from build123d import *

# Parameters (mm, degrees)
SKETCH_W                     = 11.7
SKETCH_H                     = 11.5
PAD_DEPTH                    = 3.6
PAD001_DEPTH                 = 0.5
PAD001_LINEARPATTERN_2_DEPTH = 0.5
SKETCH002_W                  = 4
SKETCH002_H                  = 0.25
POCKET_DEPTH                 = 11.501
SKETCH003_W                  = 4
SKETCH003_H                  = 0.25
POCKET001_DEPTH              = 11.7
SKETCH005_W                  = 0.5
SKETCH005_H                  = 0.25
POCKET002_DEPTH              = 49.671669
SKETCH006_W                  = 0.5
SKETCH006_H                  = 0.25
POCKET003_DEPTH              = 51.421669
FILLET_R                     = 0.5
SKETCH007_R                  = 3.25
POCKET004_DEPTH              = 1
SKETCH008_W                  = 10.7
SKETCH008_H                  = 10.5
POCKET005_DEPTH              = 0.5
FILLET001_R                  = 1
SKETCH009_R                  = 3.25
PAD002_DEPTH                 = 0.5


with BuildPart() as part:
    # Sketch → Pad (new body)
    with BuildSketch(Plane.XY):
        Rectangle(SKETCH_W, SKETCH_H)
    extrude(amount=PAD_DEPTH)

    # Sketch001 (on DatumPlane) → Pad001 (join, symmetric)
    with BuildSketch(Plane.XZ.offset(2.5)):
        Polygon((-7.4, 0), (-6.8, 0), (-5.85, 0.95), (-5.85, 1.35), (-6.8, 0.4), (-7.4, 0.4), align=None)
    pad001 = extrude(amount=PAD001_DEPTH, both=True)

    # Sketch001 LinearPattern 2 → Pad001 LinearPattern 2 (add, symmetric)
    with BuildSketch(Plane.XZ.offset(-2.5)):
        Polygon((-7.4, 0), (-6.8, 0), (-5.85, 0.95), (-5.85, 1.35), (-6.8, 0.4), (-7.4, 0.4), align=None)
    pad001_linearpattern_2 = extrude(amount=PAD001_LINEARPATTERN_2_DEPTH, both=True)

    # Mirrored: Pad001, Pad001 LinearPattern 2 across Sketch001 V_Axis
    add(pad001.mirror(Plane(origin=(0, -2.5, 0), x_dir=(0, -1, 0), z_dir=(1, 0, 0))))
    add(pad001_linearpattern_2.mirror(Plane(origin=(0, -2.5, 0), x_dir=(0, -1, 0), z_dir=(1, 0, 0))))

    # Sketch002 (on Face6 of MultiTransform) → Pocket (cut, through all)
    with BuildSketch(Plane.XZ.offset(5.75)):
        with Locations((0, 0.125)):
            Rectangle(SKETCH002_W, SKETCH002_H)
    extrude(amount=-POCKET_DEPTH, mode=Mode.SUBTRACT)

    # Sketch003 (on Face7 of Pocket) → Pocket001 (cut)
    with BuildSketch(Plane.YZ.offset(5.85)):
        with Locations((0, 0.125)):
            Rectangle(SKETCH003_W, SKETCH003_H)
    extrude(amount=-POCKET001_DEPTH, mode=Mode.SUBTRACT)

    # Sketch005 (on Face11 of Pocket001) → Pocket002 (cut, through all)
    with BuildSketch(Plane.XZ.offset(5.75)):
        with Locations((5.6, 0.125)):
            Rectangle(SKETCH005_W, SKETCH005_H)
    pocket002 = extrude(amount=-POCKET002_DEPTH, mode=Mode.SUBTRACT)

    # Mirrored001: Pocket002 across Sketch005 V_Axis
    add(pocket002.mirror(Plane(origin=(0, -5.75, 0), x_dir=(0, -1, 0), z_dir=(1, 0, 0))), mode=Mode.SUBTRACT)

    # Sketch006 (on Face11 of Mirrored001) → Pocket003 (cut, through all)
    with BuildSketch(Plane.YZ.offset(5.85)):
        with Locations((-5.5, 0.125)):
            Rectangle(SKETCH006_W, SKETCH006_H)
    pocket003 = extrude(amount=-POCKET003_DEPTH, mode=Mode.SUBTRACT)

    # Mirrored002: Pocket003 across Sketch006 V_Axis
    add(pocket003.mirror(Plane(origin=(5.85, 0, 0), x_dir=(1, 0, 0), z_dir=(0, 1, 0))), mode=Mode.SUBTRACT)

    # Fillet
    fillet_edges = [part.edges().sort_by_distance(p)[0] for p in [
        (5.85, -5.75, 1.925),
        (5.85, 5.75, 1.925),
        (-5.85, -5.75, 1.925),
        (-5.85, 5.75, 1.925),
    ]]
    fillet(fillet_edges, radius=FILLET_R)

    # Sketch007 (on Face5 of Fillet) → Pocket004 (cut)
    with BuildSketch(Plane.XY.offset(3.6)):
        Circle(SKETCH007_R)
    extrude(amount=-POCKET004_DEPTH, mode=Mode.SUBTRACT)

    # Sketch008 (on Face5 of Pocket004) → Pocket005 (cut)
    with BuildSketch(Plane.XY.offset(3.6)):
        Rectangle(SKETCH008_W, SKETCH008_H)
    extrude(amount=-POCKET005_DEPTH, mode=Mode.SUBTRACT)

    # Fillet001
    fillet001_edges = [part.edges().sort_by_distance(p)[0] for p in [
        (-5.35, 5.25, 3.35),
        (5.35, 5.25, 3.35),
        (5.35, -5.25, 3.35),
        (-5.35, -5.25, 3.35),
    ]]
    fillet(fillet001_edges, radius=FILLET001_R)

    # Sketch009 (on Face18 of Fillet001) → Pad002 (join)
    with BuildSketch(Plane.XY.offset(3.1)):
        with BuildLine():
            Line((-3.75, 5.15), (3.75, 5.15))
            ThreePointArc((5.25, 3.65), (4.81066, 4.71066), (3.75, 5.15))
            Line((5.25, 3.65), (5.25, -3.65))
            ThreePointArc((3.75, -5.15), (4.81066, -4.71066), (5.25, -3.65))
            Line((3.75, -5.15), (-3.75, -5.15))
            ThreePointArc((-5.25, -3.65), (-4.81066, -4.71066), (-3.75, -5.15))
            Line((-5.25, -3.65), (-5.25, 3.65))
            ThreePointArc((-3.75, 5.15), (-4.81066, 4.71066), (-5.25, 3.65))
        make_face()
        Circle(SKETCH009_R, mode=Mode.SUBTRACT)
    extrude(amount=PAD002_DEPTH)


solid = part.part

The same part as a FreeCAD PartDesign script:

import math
import FreeCAD as App
import Part
import Sketcher
from FreeCAD import Vector
Q = App.Units.Quantity


def edges_at(feature, points):
    """Names of the edges that pass closest to the given points."""
    edges = feature.Shape.Edges
    near = lambda p: min(range(len(edges)), key=lambda i: edges[i].distToShape(Part.Vertex(*p))[0])
    return sorted({f"Edge{near(p) + 1}" for p in points})


def add_polygon(sketch, points):
    """Adds a closed chain of lines whose ends are joined by coincident constraints."""
    first, n = sketch.GeometryCount, len(points)
    for a, b in zip(points, points[1:] + points[:1]):
        sketch.addGeometry(Part.LineSegment(App.Vector(*a, 0), App.Vector(*b, 0)), False)
    for i in range(n):
        sketch.addConstraint(Sketcher.Constraint("Coincident", first + i, 2, first + (i + 1) % n, 1))

doc = App.newDocument("Part")
body = doc.addObject("PartDesign::Body", "Body")

# Sketch on XY plane
sketch1 = body.newObject("Sketcher::SketchObject", "Sketch")
sketch1.AttachmentSupport = (doc.getObject("XY_Plane"), [""])
sketch1.MapMode = "FlatFace"
add_polygon(sketch1, [(-6, 6), (-6, -6), (6, -6), (6, 6)])  # lines 0-3
sketch1.addConstraint(Sketcher.Constraint("Vertical", 0))
sketch1.addConstraint(Sketcher.Constraint("Horizontal", 1))
sketch1.addConstraint(Sketcher.Constraint("Vertical", 2))
sketch1.addConstraint(Sketcher.Constraint("Horizontal", 3))
sketch1.addConstraint(Sketcher.Constraint("Symmetric", 0, 2, 2, 2, -1, 1))
sketch1.addConstraint(Sketcher.Constraint("DistanceX", 1, 1, 1, 2, Q("11.7 mm")))
sketch1.addConstraint(Sketcher.Constraint("DistanceY", 0, 2, 0, 1, Q("11.5 mm")))
pad1 = body.newObject("PartDesign::Pad", "Pad")
pad1.Profile = sketch1
pad1.Length = 3.6

# Sketch on XZ plane
sketch2 = body.newObject("Sketcher::SketchObject", "Sketch001")
sketch2.AttachmentSupport = (doc.getObject("XZ_Plane"), [""])
sketch2.MapMode = "FlatFace"
sketch2.AttachmentOffset = App.Placement(Vector(0, 0, 2.5), App.Rotation())
add_polygon(sketch2, [(-7.4, 0), (-6.8, 0), (-5.85, 0.95), (-5.85, 1.35), (-6.8, 0.4), (-7.4, 0.4)])  # lines 0-5
sketch2.addConstraint(Sketcher.Constraint("Horizontal", 0))
sketch2.addConstraint(Sketcher.Constraint("Vertical", 2))
sketch2.addConstraint(Sketcher.Constraint("Horizontal", 4))
sketch2.addConstraint(Sketcher.Constraint("Vertical", 5))
sketch2.addConstraint(Sketcher.Constraint("PointOnObject", 0, 2, -1))
sketch2.addConstraint(Sketcher.Constraint("Parallel", 1, 3))
sketch2.addConstraint(Sketcher.Constraint("Vertical", 0, 2, 3, 2))
sketch2.addConstraint(Sketcher.Constraint("Angle", 1, Q("45 deg")))
sketch2.addConstraint(Sketcher.Constraint("DistanceX", 0, 1, 0, 2, Q("0.6 mm")))
sketch2.addConstraint(Sketcher.Constraint("DistanceY", 2, 1, 2, 2, Q("0.4 mm")))
sketch2.addConstraint(Sketcher.Constraint("DistanceX", 0, 2, -1, 1, Q("6.8 mm")))
sketch2.addConstraint(Sketcher.Constraint("DistanceX", 1, 2, -1, 1, Q("5.85 mm")))
pad2 = body.newObject("PartDesign::Pad", "Pad001")
pad2.Profile = sketch2
pad2.Length = 1
pad2.Midplane = True

# Sketch on XZ plane
sketch3 = body.newObject("Sketcher::SketchObject", "Sketch002")
sketch3.AttachmentSupport = (doc.getObject("XZ_Plane"), [""])
sketch3.MapMode = "FlatFace"
sketch3.AttachmentOffset = App.Placement(Vector(0, 0, -2.5), App.Rotation())
add_polygon(sketch3, [(-7.4, 0), (-6.8, 0), (-5.85, 0.95), (-5.85, 1.35), (-6.8, 0.4), (-7.4, 0.4)])  # lines 0-5
sketch3.addConstraint(Sketcher.Constraint("Horizontal", 0))
sketch3.addConstraint(Sketcher.Constraint("Vertical", 2))
sketch3.addConstraint(Sketcher.Constraint("Horizontal", 4))
sketch3.addConstraint(Sketcher.Constraint("Vertical", 5))
sketch3.addConstraint(Sketcher.Constraint("PointOnObject", 0, 2, -1))
sketch3.addConstraint(Sketcher.Constraint("Parallel", 1, 3))
sketch3.addConstraint(Sketcher.Constraint("Vertical", 0, 2, 3, 2))
sketch3.addConstraint(Sketcher.Constraint("Angle", 1, Q("45 deg")))
sketch3.addConstraint(Sketcher.Constraint("DistanceX", 0, 1, 0, 2, Q("0.6 mm")))
sketch3.addConstraint(Sketcher.Constraint("DistanceY", 2, 1, 2, 2, Q("0.4 mm")))
sketch3.addConstraint(Sketcher.Constraint("DistanceX", 0, 2, -1, 1, Q("6.8 mm")))
sketch3.addConstraint(Sketcher.Constraint("DistanceX", 1, 2, -1, 1, Q("5.85 mm")))
pad3 = body.newObject("PartDesign::Pad", "Pad002")
pad3.Profile = sketch3
pad3.Length = 1
pad3.Midplane = True
doc.recompute()

mirrored = body.newObject("PartDesign::Mirrored", "Mirrored")
mirrored.Originals = [pad2, pad3]
mirrored.MirrorPlane = (doc.getObject("YZ_Plane"), [""])
body.Tip = mirrored

# Sketch on XZ plane
sketch4 = body.newObject("Sketcher::SketchObject", "Sketch003")
sketch4.AttachmentSupport = (doc.getObject("XZ_Plane"), [""])
sketch4.MapMode = "FlatFace"
sketch4.AttachmentOffset = App.Placement(Vector(0, 0, 5.75), App.Rotation())
add_polygon(sketch4, [(-2, 0.25), (-2, 0), (2, 0), (2, 0.25)])  # lines 0-3
sketch4.addConstraint(Sketcher.Constraint("Vertical", 0))
sketch4.addConstraint(Sketcher.Constraint("Horizontal", 1))
sketch4.addConstraint(Sketcher.Constraint("Vertical", 2))
sketch4.addConstraint(Sketcher.Constraint("Horizontal", 3))
sketch4.addConstraint(Sketcher.Constraint("Symmetric", 0, 2, 1, 2, -1, 1))
sketch4.addConstraint(Sketcher.Constraint("DistanceX", 1, 1, 1, 2, Q("4 mm")))
sketch4.addConstraint(Sketcher.Constraint("DistanceY", 0, 2, 0, 1, Q("0.25 mm")))
pocket1 = body.newObject("PartDesign::Pocket", "Pocket")
pocket1.Profile = sketch4
pocket1.Type = "ThroughAll"

# Sketch on YZ plane
sketch5 = body.newObject("Sketcher::SketchObject", "Sketch004")
sketch5.AttachmentSupport = (doc.getObject("YZ_Plane"), [""])
sketch5.MapMode = "FlatFace"
sketch5.AttachmentOffset = App.Placement(Vector(0, 0, 5.85), App.Rotation())
add_polygon(sketch5, [(-2, 0.25), (-2, 0), (2, 0), (2, 0.25)])  # lines 0-3
sketch5.addConstraint(Sketcher.Constraint("Vertical", 0))
sketch5.addConstraint(Sketcher.Constraint("Horizontal", 1))
sketch5.addConstraint(Sketcher.Constraint("Vertical", 2))
sketch5.addConstraint(Sketcher.Constraint("Horizontal", 3))
sketch5.addConstraint(Sketcher.Constraint("Symmetric", 0, 2, 1, 2, -1, 1))
sketch5.addConstraint(Sketcher.Constraint("DistanceX", 1, 1, 1, 2, Q("4 mm")))
sketch5.addConstraint(Sketcher.Constraint("DistanceY", 0, 2, 0, 1, Q("0.25 mm")))
pocket2 = body.newObject("PartDesign::Pocket", "Pocket001")
pocket2.Profile = sketch5
pocket2.Length = 11.7

# Sketch on XZ plane
sketch6 = body.newObject("Sketcher::SketchObject", "Sketch005")
sketch6.AttachmentSupport = (doc.getObject("XZ_Plane"), [""])
sketch6.MapMode = "FlatFace"
sketch6.AttachmentOffset = App.Placement(Vector(0, 0, 5.75), App.Rotation())
add_polygon(sketch6, [(5.35, 0.25), (5.35, 0), (5.85, 0), (5.85, 0.25)])  # lines 0-3
sketch6.addConstraint(Sketcher.Constraint("Vertical", 0))
sketch6.addConstraint(Sketcher.Constraint("Horizontal", 1))
sketch6.addConstraint(Sketcher.Constraint("Vertical", 2))
sketch6.addConstraint(Sketcher.Constraint("Horizontal", 3))
sketch6.addConstraint(Sketcher.Constraint("PointOnObject", 0, 2, -1))
sketch6.addConstraint(Sketcher.Constraint("DistanceX", 1, 1, 1, 2, Q("0.5 mm")))
sketch6.addConstraint(Sketcher.Constraint("DistanceY", 0, 2, 0, 1, Q("0.25 mm")))
sketch6.addConstraint(Sketcher.Constraint("DistanceX", -1, 1, 0, 2, Q("5.35 mm")))
pocket3 = body.newObject("PartDesign::Pocket", "Pocket002")
pocket3.Profile = sketch6
pocket3.Type = "ThroughAll"
doc.recompute()

mirrored2 = body.newObject("PartDesign::Mirrored", "Mirrored001")
mirrored2.Originals = [pocket3]
mirrored2.MirrorPlane = (doc.getObject("YZ_Plane"), [""])
body.Tip = mirrored2

# Sketch on YZ plane
sketch7 = body.newObject("Sketcher::SketchObject", "Sketch006")
sketch7.AttachmentSupport = (doc.getObject("YZ_Plane"), [""])
sketch7.MapMode = "FlatFace"
sketch7.AttachmentOffset = App.Placement(Vector(0, 0, 5.85), App.Rotation())
add_polygon(sketch7, [(-5.75, 0.25), (-5.75, 0), (-5.25, 0), (-5.25, 0.25)])  # lines 0-3
sketch7.addConstraint(Sketcher.Constraint("Vertical", 0))
sketch7.addConstraint(Sketcher.Constraint("Horizontal", 1))
sketch7.addConstraint(Sketcher.Constraint("Vertical", 2))
sketch7.addConstraint(Sketcher.Constraint("Horizontal", 3))
sketch7.addConstraint(Sketcher.Constraint("PointOnObject", 0, 2, -1))
sketch7.addConstraint(Sketcher.Constraint("DistanceX", 1, 1, 1, 2, Q("0.5 mm")))
sketch7.addConstraint(Sketcher.Constraint("DistanceY", 0, 2, 0, 1, Q("0.25 mm")))
sketch7.addConstraint(Sketcher.Constraint("DistanceX", 0, 2, -1, 1, Q("5.75 mm")))
pocket4 = body.newObject("PartDesign::Pocket", "Pocket003")
pocket4.Profile = sketch7
pocket4.Type = "ThroughAll"
doc.recompute()

mirrored3 = body.newObject("PartDesign::Mirrored", "Mirrored002")
mirrored3.Originals = [pocket4]
mirrored3.MirrorPlane = (doc.getObject("XZ_Plane"), [""])
body.Tip = mirrored3
doc.recompute()

fillet = body.newObject("PartDesign::Fillet", "Fillet")
fillet.Base = (mirrored3, edges_at(mirrored3, [
    (5.85, -5.75, 1.925),
    (5.85, 5.75, 1.925),
    (-5.85, -5.75, 1.925),
    (-5.85, 5.75, 1.925),
]))
fillet.Radius = 0.5

# Sketch on XY plane
sketch8 = body.newObject("Sketcher::SketchObject", "Sketch007")
sketch8.AttachmentSupport = (doc.getObject("XY_Plane"), [""])
sketch8.MapMode = "FlatFace"
sketch8.AttachmentOffset = App.Placement(Vector(0, 0, 3.6), App.Rotation())
sketch8.addGeometry(Part.Circle(Vector(0, 0, 0), Vector(0, 0, 1), 3.2), False)
sketch8.addConstraint(Sketcher.Constraint("Coincident", 0, 3, -1, 1))
sketch8.addConstraint(Sketcher.Constraint("Diameter", 0, Q("6.5 mm")))
pocket5 = body.newObject("PartDesign::Pocket", "Pocket004")
pocket5.Profile = sketch8
pocket5.Length = 1

# Sketch on XY plane
sketch9 = body.newObject("Sketcher::SketchObject", "Sketch008")
sketch9.AttachmentSupport = (doc.getObject("XY_Plane"), [""])
sketch9.MapMode = "FlatFace"
sketch9.AttachmentOffset = App.Placement(Vector(0, 0, 3.6), App.Rotation())
add_polygon(sketch9, [(-5, 5), (-5, -5), (5, -5), (5, 5)])  # lines 0-3
sketch9.addConstraint(Sketcher.Constraint("Vertical", 0))
sketch9.addConstraint(Sketcher.Constraint("Horizontal", 1))
sketch9.addConstraint(Sketcher.Constraint("Vertical", 2))
sketch9.addConstraint(Sketcher.Constraint("Horizontal", 3))
sketch9.addConstraint(Sketcher.Constraint("Symmetric", 0, 2, 2, 2, -1, 1))
sketch9.addConstraint(Sketcher.Constraint("DistanceX", 1, 1, 1, 2, Q("10.7 mm")))
sketch9.addConstraint(Sketcher.Constraint("DistanceY", 0, 2, 0, 1, Q("10.5 mm")))
pocket6 = body.newObject("PartDesign::Pocket", "Pocket005")
pocket6.Profile = sketch9
pocket6.Length = 0.5
doc.recompute()

fillet2 = body.newObject("PartDesign::Fillet", "Fillet001")
fillet2.Base = (pocket6, edges_at(pocket6, [
    (-5.35, 5.25, 3.35),
    (5.35, 5.25, 3.35),
    (5.35, -5.25, 3.35),
    (-5.35, -5.25, 3.35),
]))
fillet2.Radius = 1

# Sketch on XY plane
sketch10 = body.newObject("Sketcher::SketchObject", "Sketch009")
sketch10.AttachmentSupport = (doc.getObject("XY_Plane"), [""])
sketch10.MapMode = "FlatFace"
sketch10.AttachmentOffset = App.Placement(Vector(0, 0, 3.1), App.Rotation())
sketch10.addGeometry(Part.LineSegment(Vector(3.8, 5.2, 0), Vector(-3.8, 5.2, 0)), False)
sketch10.addGeometry(Part.ArcOfCircle(Part.Circle(Vector(-3.7, 3.6, 0), Vector(0, 0, 1), 1.5), math.radians(90), math.radians(180)), False)
sketch10.addGeometry(Part.LineSegment(Vector(-5.2, 3.6, 0), Vector(-5.2, -3.6, 0)), False)
sketch10.addGeometry(Part.ArcOfCircle(Part.Circle(Vector(-3.7, -3.6, 0), Vector(0, 0, 1), 1.5), math.radians(-180), math.radians(-90)), False)
sketch10.addGeometry(Part.LineSegment(Vector(-3.8, -5.2, 0), Vector(3.8, -5.2, 0)), False)
sketch10.addGeometry(Part.ArcOfCircle(Part.Circle(Vector(3.7, -3.6, 0), Vector(0, 0, 1), 1.5), math.radians(-90), math.radians(0)), False)
sketch10.addGeometry(Part.LineSegment(Vector(5.2, -3.6, 0), Vector(5.2, 3.6, 0)), False)
sketch10.addGeometry(Part.ArcOfCircle(Part.Circle(Vector(3.7, 3.6, 0), Vector(0, 0, 1), 1.5), math.radians(0), math.radians(90)), False)
sketch10.addGeometry(Part.Circle(Vector(0, 0, 0), Vector(0, 0, 1), 3.2), False)
sketch10.addConstraint(Sketcher.Constraint("Tangent", 0, 2, 1, 1))
sketch10.addConstraint(Sketcher.Constraint("Tangent", 1, 2, 2, 1))
sketch10.addConstraint(Sketcher.Constraint("Tangent", 2, 2, 3, 1))
sketch10.addConstraint(Sketcher.Constraint("Tangent", 3, 2, 4, 1))
sketch10.addConstraint(Sketcher.Constraint("Tangent", 4, 2, 5, 1))
sketch10.addConstraint(Sketcher.Constraint("Tangent", 5, 2, 6, 1))
sketch10.addConstraint(Sketcher.Constraint("Tangent", 6, 2, 7, 1))
sketch10.addConstraint(Sketcher.Constraint("Tangent", 7, 2, 0, 1))
sketch10.addConstraint(Sketcher.Constraint("Horizontal", 0))
sketch10.addConstraint(Sketcher.Constraint("Vertical", 2))
sketch10.addConstraint(Sketcher.Constraint("Horizontal", 4))
sketch10.addConstraint(Sketcher.Constraint("Vertical", 6))
sketch10.addConstraint(Sketcher.Constraint("Coincident", 8, 3, -1, 1))
sketch10.addConstraint(Sketcher.Constraint("Equal", 1, 3))
sketch10.addConstraint(Sketcher.Constraint("Equal", 3, 5))
sketch10.addConstraint(Sketcher.Constraint("Equal", 5, 7))
sketch10.addConstraint(Sketcher.Constraint("Symmetric", 1, 3, 5, 3, -1, 1))
sketch10.addConstraint(Sketcher.Constraint("Diameter", 8, Q("6.5 mm")))
sketch10.addConstraint(Sketcher.Constraint("Radius", 1, Q("1.500001 mm")))
sketch10.addConstraint(Sketcher.Constraint("DistanceX", 0, 2, 0, 1, Q("7.5 mm")))
sketch10.addConstraint(Sketcher.Constraint("DistanceY", 2, 2, 2, 1, Q("7.3 mm")))
pad4 = body.newObject("PartDesign::Pad", "Pad003")
pad4.Profile = sketch10
pad4.Length = 0.5

doc.recompute()
